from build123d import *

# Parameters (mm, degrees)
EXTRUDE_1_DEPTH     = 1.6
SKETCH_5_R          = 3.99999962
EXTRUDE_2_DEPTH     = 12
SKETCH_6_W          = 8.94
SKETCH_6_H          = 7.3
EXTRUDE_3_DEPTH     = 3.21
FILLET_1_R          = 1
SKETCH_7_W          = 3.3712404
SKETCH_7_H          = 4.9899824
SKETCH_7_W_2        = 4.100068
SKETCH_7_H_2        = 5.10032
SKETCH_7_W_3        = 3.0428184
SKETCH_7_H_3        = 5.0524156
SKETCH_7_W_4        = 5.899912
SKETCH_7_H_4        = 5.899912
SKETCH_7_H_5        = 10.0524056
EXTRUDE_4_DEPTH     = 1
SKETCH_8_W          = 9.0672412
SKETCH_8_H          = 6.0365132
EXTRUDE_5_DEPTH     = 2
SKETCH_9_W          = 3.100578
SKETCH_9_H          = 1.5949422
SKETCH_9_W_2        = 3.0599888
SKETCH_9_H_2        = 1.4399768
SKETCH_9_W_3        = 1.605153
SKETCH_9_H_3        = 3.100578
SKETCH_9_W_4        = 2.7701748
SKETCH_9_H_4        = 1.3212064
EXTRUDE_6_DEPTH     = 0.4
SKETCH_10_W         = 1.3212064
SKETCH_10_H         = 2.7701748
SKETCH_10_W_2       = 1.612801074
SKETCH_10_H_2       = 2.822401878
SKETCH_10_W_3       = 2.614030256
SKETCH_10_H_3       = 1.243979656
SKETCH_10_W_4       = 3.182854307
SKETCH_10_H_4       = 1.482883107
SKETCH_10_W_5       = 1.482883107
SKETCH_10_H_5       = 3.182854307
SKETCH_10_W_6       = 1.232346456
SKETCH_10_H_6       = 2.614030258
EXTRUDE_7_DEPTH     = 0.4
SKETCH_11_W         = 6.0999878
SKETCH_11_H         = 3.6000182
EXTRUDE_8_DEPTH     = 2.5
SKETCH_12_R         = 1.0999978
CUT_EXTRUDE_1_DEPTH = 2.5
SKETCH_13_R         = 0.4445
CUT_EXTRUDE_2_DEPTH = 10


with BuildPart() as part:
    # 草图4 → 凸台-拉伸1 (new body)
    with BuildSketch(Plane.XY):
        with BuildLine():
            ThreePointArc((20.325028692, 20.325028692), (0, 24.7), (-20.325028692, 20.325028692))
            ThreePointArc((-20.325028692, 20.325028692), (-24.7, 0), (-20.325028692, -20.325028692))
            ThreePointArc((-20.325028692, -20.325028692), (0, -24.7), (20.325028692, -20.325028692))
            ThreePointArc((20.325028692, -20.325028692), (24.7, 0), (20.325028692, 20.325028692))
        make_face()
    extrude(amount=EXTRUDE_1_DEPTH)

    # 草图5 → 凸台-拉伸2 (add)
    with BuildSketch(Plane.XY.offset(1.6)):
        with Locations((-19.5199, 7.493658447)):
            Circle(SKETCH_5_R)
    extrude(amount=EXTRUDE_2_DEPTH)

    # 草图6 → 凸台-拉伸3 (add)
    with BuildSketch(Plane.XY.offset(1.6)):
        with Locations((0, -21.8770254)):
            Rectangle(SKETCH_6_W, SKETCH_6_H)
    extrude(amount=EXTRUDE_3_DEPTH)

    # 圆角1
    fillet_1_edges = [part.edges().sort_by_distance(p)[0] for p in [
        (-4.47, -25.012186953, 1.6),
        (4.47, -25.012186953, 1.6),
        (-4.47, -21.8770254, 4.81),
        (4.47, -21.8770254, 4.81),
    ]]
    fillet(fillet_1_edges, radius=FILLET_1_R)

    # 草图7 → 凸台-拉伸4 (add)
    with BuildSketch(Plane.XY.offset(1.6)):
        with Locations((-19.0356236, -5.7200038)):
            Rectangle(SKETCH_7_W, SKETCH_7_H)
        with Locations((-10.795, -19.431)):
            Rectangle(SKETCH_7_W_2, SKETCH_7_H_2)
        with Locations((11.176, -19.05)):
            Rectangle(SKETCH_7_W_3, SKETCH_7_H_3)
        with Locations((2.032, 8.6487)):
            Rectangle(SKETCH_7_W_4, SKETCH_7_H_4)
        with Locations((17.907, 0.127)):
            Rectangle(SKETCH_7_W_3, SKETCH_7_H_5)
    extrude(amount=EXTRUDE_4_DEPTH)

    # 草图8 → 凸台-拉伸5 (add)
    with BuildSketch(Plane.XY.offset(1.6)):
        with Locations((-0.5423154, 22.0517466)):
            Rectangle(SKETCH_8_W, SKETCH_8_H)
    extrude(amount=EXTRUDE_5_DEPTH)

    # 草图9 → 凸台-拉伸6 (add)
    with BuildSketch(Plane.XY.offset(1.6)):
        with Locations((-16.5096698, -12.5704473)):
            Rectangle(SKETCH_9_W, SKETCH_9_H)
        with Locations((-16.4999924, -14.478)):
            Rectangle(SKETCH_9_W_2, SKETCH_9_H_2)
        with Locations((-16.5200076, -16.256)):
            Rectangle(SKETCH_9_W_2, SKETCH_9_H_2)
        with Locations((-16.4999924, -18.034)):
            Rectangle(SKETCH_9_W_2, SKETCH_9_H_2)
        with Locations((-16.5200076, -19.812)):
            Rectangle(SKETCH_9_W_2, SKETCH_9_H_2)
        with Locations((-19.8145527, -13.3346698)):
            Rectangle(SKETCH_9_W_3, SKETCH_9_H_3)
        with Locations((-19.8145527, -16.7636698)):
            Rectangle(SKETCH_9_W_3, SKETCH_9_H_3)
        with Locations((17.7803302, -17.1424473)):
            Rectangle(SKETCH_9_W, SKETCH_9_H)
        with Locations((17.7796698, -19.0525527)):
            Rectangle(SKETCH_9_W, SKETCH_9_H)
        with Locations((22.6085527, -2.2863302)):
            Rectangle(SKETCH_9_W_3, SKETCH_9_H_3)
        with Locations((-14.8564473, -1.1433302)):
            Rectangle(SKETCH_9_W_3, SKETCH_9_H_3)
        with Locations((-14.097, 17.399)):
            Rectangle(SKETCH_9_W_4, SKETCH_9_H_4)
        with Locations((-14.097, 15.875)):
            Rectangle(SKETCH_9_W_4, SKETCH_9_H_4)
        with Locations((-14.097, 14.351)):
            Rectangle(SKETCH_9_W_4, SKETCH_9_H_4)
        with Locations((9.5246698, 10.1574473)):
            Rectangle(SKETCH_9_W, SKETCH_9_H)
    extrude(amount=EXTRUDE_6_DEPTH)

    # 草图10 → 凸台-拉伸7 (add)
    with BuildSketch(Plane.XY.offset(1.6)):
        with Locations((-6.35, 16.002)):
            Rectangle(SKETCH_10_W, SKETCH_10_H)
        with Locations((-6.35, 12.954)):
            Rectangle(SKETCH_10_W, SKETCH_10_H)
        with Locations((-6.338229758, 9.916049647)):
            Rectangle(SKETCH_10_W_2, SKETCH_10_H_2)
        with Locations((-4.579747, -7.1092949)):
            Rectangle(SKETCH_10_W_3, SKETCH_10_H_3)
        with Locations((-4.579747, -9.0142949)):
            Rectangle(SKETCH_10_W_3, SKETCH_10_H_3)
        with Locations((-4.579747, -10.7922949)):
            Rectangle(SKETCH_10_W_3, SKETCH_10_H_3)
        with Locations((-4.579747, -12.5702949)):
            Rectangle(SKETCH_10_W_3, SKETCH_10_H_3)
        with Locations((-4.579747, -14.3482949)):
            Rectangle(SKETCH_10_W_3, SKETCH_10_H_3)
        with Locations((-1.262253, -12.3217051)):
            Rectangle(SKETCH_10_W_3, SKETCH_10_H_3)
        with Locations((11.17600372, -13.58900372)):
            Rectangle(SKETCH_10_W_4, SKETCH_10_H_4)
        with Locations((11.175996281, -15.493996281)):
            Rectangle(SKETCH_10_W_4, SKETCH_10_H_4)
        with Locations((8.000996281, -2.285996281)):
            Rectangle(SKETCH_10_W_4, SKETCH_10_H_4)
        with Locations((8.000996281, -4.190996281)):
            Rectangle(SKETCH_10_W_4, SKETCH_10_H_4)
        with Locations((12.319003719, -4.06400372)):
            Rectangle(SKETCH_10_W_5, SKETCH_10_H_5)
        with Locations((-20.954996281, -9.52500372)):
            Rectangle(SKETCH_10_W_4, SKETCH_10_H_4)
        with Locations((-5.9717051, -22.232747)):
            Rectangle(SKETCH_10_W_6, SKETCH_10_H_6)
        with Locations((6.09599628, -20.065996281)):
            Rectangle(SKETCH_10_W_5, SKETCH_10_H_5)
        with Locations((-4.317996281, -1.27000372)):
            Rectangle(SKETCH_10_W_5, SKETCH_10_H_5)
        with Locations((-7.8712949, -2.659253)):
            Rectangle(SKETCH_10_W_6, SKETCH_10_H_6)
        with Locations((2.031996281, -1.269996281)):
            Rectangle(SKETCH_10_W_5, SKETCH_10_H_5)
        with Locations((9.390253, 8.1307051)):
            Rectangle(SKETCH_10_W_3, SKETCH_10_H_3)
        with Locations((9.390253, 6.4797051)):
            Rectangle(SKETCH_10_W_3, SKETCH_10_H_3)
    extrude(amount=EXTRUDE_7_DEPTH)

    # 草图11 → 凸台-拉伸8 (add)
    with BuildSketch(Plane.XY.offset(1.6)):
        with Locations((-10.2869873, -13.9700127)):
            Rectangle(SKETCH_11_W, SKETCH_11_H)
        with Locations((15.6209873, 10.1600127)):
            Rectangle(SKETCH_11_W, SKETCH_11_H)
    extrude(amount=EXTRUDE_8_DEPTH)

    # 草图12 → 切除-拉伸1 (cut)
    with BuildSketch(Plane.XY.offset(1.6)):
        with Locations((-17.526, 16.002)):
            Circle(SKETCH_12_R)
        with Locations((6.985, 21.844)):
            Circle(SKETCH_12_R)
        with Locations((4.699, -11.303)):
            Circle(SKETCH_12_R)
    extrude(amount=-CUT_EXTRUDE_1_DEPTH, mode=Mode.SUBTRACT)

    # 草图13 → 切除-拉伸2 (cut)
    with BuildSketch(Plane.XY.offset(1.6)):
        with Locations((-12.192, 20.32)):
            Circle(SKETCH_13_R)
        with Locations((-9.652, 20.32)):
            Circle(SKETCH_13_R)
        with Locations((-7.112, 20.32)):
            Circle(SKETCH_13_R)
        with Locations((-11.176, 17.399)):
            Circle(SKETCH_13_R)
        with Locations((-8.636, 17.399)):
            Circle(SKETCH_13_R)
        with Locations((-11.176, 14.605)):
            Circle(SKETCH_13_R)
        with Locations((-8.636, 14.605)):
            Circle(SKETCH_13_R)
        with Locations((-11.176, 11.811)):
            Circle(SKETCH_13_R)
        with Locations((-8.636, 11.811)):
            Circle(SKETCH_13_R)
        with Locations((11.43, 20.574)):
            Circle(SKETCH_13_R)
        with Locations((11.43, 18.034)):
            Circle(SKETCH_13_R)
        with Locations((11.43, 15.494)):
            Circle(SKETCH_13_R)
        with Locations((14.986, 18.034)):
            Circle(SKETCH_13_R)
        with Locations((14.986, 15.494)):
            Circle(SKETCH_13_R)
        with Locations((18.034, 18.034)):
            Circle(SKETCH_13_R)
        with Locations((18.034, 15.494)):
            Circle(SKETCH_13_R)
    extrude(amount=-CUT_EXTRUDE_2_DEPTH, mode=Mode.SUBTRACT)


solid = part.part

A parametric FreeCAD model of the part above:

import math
import FreeCAD as App
import Part
import Sketcher

V = App.Vector
Q = App.Units.Quantity


def edges_at(feature, points):
    """Names of the edges that pass closest to the given points."""
    edges = feature.Shape.Edges
    near = lambda p: min(range(len(edges)), key=lambda i: edges[i].distToShape(Part.Vertex(*p))[0])
    return sorted({f"Edge{near(p) + 1}" for p in points})


def add_polygon(sketch, points):
    """Adds a closed chain of lines whose ends are joined by coincident constraints."""
    first, n = sketch.GeometryCount, len(points)
    for a, b in zip(points, points[1:] + points[:1]):
        sketch.addGeometry(Part.LineSegment(App.Vector(*a, 0), App.Vector(*b, 0)), False)
    for i in range(n):
        sketch.addConstraint(Sketcher.Constraint("Coincident", first + i, 2, first + (i + 1) % n, 1))

doc = App.newDocument("Part")
body = doc.addObject("PartDesign::Body", "Body")

sketch1 = body.newObject("Sketcher::SketchObject", "Sketch")
sketch1.AttachmentSupport = (doc.getObject("XY_Plane"), [""])
sketch1.MapMode = "FlatFace"
sketch1.addGeometry(Part.ArcOfCircle(Part.Circle(V(0, -24.7, 0), V(0, 0, 1), 49.4), math.radians(65.704811), math.radians(114.295189)), False)
sketch1.addGeometry(Part.ArcOfCircle(Part.Circle(V(24.7, 0, 0), V(0, 0, 1), 49.4), math.radians(155.704811), math.radians(204.295189)), False)
sketch1.addGeometry(Part.ArcOfCircle(Part.Circle(V(0, 24.7, 0), V(0, 0, 1), 49.4), math.radians(-114.295189), math.radians(-65.704811)), False)
sketch1.addGeometry(Part.ArcOfCircle(Part.Circle(V(-24.7, 0, 0), V(0, 0, 1), 49.4), math.radians(-24.295189), math.radians(24.295189)), False)
sketch1.addConstraint(Sketcher.Constraint("Coincident", 0, 2, 1, 1))
sketch1.addConstraint(Sketcher.Constraint("Coincident", 1, 2, 2, 1))
sketch1.addConstraint(Sketcher.Constraint("Coincident", 2, 2, 3, 1))
sketch1.addConstraint(Sketcher.Constraint("Coincident", 3, 2, 0, 1))
sketch1.addConstraint(Sketcher.Constraint("Equal", 0, 1))
sketch1.addConstraint(Sketcher.Constraint("Equal", 1, 2))
sketch1.addConstraint(Sketcher.Constraint("Equal", 2, 3))
sketch1.addConstraint(Sketcher.Constraint("Symmetric", 0, 3, 2, 3, -1, 1))
sketch1.addConstraint(Sketcher.Constraint("Symmetric", 1, 3, 3, 3, -1, 1))
sketch1.addConstraint(Sketcher.Constraint("Symmetric", 1, 2, 2, 2, -2))
sketch1.addConstraint(Sketcher.Constraint("Radius", 0, Q("49.4 mm")))
sketch1.addConstraint(Sketcher.Constraint("DistanceY", 0, 3, -1, 1, Q("24.7 mm")))
sketch1.addConstraint(Sketcher.Constraint("DistanceX", -1, 1, 1, 3, Q("24.7 mm")))
pad1 = body.newObject("PartDesign::Pad", "Pad")
pad1.Profile = sketch1
pad1.Length = 1.6

sketch2 = body.newObject("Sketcher::SketchObject", "Sketch001")
sketch2.AttachmentSupport = (doc.getObject("XY_Plane"), [""])
sketch2.MapMode = "FlatFace"
sketch2.AttachmentOffset = App.Placement(V(0, 0, 1.6), App.Rotation())
sketch2.addGeometry(Part.Circle(V(-19.5199, 7.493658, 0), V(0, 0, 1), 4), False)
sketch2.addConstraint(Sketcher.Constraint("Diameter", 0, Q("7.999999 mm")))
sketch2.addConstraint(Sketcher.Constraint("DistanceX", 0, 3, -1, 1, Q("19.5199 mm")))
sketch2.addConstraint(Sketcher.Constraint("DistanceY", -1, 1, 0, 3, Q("7.493658 mm")))
pad2 = body.newObject("PartDesign::Pad", "Pad001")
pad2.Profile = sketch2
pad2.Length = 12

sketch3 = body.newObject("Sketcher::SketchObject", "Sketch002")
sketch3.AttachmentSupport = (doc.getObject("XY_Plane"), [""])
sketch3.MapMode = "FlatFace"
sketch3.AttachmentOffset = App.Placement(V(0, 0, 1.6), App.Rotation())
add_polygon(sketch3, [(-4.47, -18.227025), (-4.47, -25.527025), (4.47, -25.527025), (4.47, -18.227025)])
sketch3.addConstraint(Sketcher.Constraint("Vertical", 0))
sketch3.addConstraint(Sketcher.Constraint("Horizontal", 1))
sketch3.addConstraint(Sketcher.Constraint("Vertical", 2))
sketch3.addConstraint(Sketcher.Constraint("Horizontal", 3))
sketch3.addConstraint(Sketcher.Constraint("DistanceY", 0, 2, 0, 1, Q("7.3 mm")))
sketch3.addConstraint(Sketcher.Constraint("DistanceX", 1, 1, 1, 2, Q("8.94 mm")))
sketch3.addConstraint(Sketcher.Constraint("DistanceX", 0, 2, -1, 1, Q("4.47 mm")))
sketch3.addConstraint(Sketcher.Constraint("DistanceY", 0, 2, -1, 1, Q("25.527025 mm")))
pad3 = body.newObject("PartDesign::Pad", "Pad002")
pad3.Profile = sketch3
pad3.Length = 3.21
doc.recompute()

fillet = body.newObject("PartDesign::Fillet", "Fillet")
fillet.Base = (pad3, edges_at(pad3, [
    (-4.47, -25.012, 1.6),
    (4.47, -25.012, 1.6),
    (-4.47, -21.877, 4.81),
    (4.47, -21.877, 4.81),
]))
fillet.Radius = 1

sketch4 = body.newObject("Sketcher::SketchObject", "Sketch003")
sketch4.AttachmentSupport = (doc.getObject("XY_Plane"), [""])
sketch4.MapMode = "FlatFace"
sketch4.AttachmentOffset = App.Placement(V(0, 0, 1.6), App.Rotation())
add_polygon(sketch4, [(-20.721244, -3.225013), (-20.721244, -8.214995), (-17.350003, -8.214995), (-17.350003, -3.225013)])
add_polygon(sketch4, [(-12.845034, -16.88084), (-12.845034, -21.98116), (-8.744966, -21.98116), (-8.744966, -16.88084)])
add_polygon(sketch4, [(9.654591, -16.523792), (9.654591, -21.576208), (12.697409, -21.576208), (12.697409, -16.523792)])
add_polygon(sketch4, [(-0.917956, 11.598656), (-0.917956, 5.698744), (4.981956, 5.698744), (4.981956, 11.598656)])
add_polygon(sketch4, [(16.385591, 5.153203), (16.385591, -4.899203), (19.428409, -4.899203), (19.428409, 5.153203)])
sketch4.addConstraint(Sketcher.Constraint("Vertical", 0))
sketch4.addConstraint(Sketcher.Constraint("Horizontal", 1))
sketch4.addConstraint(Sketcher.Constraint("Vertical", 2))
sketch4.addConstraint(Sketcher.Constraint("Horizontal", 3))
sketch4.addConstraint(Sketcher.Constraint("Vertical", 4))
sketch4.addConstraint(Sketcher.Constraint("Horizontal", 5))
sketch4.addConstraint(Sketcher.Constraint("Vertical", 6))
sketch4.addConstraint(Sketcher.Constraint("Horizontal", 7))
sketch4.addConstraint(Sketcher.Constraint("Vertical", 8))
sketch4.addConstraint(Sketcher.Constraint("Horizontal", 9))
sketch4.addConstraint(Sketcher.Constraint("Vertical", 10))
sketch4.addConstraint(Sketcher.Constraint("Horizontal", 11))
sketch4.addConstraint(Sketcher.Constraint("Vertical", 12))
sketch4.addConstraint(Sketcher.Constraint("Horizontal", 13))
sketch4.addConstraint(Sketcher.Constraint("Vertical", 14))
sketch4.addConstraint(Sketcher.Constraint("Horizontal", 15))
sketch4.addConstraint(Sketcher.Constraint("Vertical", 16))
sketch4.addConstraint(Sketcher.Constraint("Horizontal", 17))
sketch4.addConstraint(Sketcher.Constraint("Vertical", 18))
sketch4.addConstraint(Sketcher.Constraint("Horizontal", 19))
sketch4.addConstraint(Sketcher.Constraint("Equal", 11, 17))
sketch4.addConstraint(Sketcher.Constraint("Equal", 15, 12))
sketch4.addConstraint(Sketcher.Constraint("DistanceX", 11, 2, 16, 2, Q("6.731 mm")))
sketch4.addConstraint(Sketcher.Constraint("DistanceX", 1, 1, 1, 2, Q("3.37124 mm")))
sketch4.addConstraint(Sketcher.Constraint("DistanceX", 5, 1, 5, 2, Q("4.100068 mm")))
sketch4.addConstraint(Sketcher.Constraint("DistanceX", 9, 1, 9, 2, Q("3.042818 mm")))
sketch4.addConstraint(Sketcher.Constraint("DistanceY", 4, 2, 4, 1, Q("5.10032 mm")))
sketch4.addConstraint(Sketcher.Constraint("DistanceX", 13, 1, 13, 2, Q("5.899912 mm")))
sketch4.addConstraint(Sketcher.Constraint("DistanceY", 0, 2, 0, 1, Q("4.989982 mm")))
sketch4.addConstraint(Sketcher.Constraint("DistanceY", 8, 2, 8, 1, Q("5.052416 mm")))
sketch4.addConstraint(Sketcher.Constraint("DistanceY", 16, 2, 16, 1, Q("10.052406 mm")))
sketch4.addConstraint(Sketcher.Constraint("DistanceY", 4, 2, -1, 1, Q("21.98116 mm")))
sketch4.addConstraint(Sketcher.Constraint("DistanceX", -1, 1, 8, 2, Q("9.654591 mm")))
sketch4.addConstraint(Sketcher.Constraint("DistanceX", 1, 2, 4, 2, Q("4.504969 mm")))
sketch4.addConstraint(Sketcher.Constraint("DistanceY", 1, 2, 12, 2, Q("13.913739 mm")))
sketch4.addConstraint(Sketcher.Constraint("DistanceX", 6, 2, 12, 2, Q("7.82701 mm")))
sketch4.addConstraint(Sketcher.Constraint("DistanceY", 11, 2, 14, 2, Q("28.122448 mm")))
sketch4.addConstraint(Sketcher.Constraint("DistanceY", 10, 2, 16, 2, Q("11.624589 mm")))
sketch4.addConstraint(Sketcher.Constraint("DistanceX", 0, 2, -1, 1, Q("20.721244 mm")))
sketch4.addConstraint(Sketcher.Constraint("DistanceY", 0, 2, -1, 1, Q("8.214995 mm")))
pad4 = body.newObject("PartDesign::Pad", "Pad003")
pad4.Profile = sketch4
pad4.Length = 1

sketch5 = body.newObject("Sketcher::SketchObject", "Sketch004")
sketch5.AttachmentSupport = (doc.getObject("XY_Plane"), [""])
sketch5.MapMode = "FlatFace"
sketch5.AttachmentOffset = App.Placement(V(0, 0, 1.6), App.Rotation())
add_polygon(sketch5, [(-5.075936, 25.070003), (-5.075936, 19.03349), (3.991305, 19.03349), (3.991305, 25.070003)])
sketch5.addConstraint(Sketcher.Constraint("Vertical", 0))
sketch5.addConstraint(Sketcher.Constraint("Horizontal", 1))
sketch5.addConstraint(Sketcher.Constraint("Vertical", 2))
sketch5.addConstraint(Sketcher.Constraint("Horizontal", 3))
sketch5.addConstraint(Sketcher.Constraint("DistanceX", 1, 1, 1, 2, Q("9.067241 mm")))
sketch5.addConstraint(Sketcher.Constraint("DistanceY", 0, 2, 0, 1, Q("6.036513 mm")))
sketch5.addConstraint(Sketcher.Constraint("DistanceY", -1, 1, 0, 2, Q("19.03349 mm")))
sketch5.addConstraint(Sketcher.Constraint("DistanceX", 0, 2, -1, 1, Q("5.075936 mm")))
pad5 = body.newObject("PartDesign::Pad", "Pad004")
pad5.Profile = sketch5
pad5.Length = 2

sketch6 = body.newObject("Sketcher::SketchObject", "Sketch005")
sketch6.AttachmentSupport = (doc.getObject("XY_Plane"), [""])
sketch6.MapMode = "FlatFace"
sketch6.AttachmentOffset = App.Placement(V(0, 0, 1.6), App.Rotation())
add_polygon(sketch6, [(-18.059959, -11.772976), (-18.059959, -13.367918), (-14.959381, -13.367918), (-14.959381, -11.772976)])
add_polygon(sketch6, [(-18.029987, -13.758012), (-18.029987, -15.197988), (-14.969998, -15.197988), (-14.969998, -13.758012)])
add_polygon(sketch6, [(-18.050002, -15.536012), (-18.050002, -16.975988), (-14.990013, -16.975988), (-14.990013, -15.536012)])
add_polygon(sketch6, [(-18.029987, -17.314012), (-18.029987, -18.753988), (-14.969998, -18.753988), (-14.969998, -17.314012)])
add_polygon(sketch6, [(-18.050002, -19.092012), (-18.050002, -20.531988), (-14.990013, -20.531988), (-14.990013, -19.092012)])
add_polygon(sketch6, [(-20.617129, -11.784381), (-20.617129, -14.884959), (-19.011976, -14.884959), (-19.011976, -11.784381)])
add_polygon(sketch6, [(-20.617129, -15.213381), (-20.617129, -18.313959), (-19.011976, -18.313959), (-19.011976, -15.213381)])
add_polygon(sketch6, [(16.230041, -16.344976), (16.230041, -17.939918), (19.330619, -17.939918), (19.330619, -16.344976)])
add_polygon(sketch6, [(16.229381, -18.255082), (16.229381, -19.850024), (19.329959, -19.850024), (19.329959, -18.255082)])
add_polygon(sketch6, [(21.805976, -0.736041), (21.805976, -3.836619), (23.411129, -3.836619), (23.411129, -0.736041)])
add_polygon(sketch6, [(-15.659024, 0.406959), (-15.659024, -2.693619), (-14.053871, -2.693619), (-14.053871, 0.406959)])
add_polygon(sketch6, [(-15.482087, 18.059603), (-15.482087, 16.738397), (-12.711913, 16.738397), (-12.711913, 18.059603)])
add_polygon(sketch6, [(-15.482087, 16.535603), (-15.482087, 15.214397), (-12.711913, 15.214397), (-12.711913, 16.535603)])
add_polygon(sketch6, [(-15.482087, 15.011603), (-15.482087, 13.690397), (-12.711913, 13.690397), (-12.711913, 15.011603)])
add_polygon(sketch6, [(7.974381, 10.954918), (7.974381, 9.359976), (11.074959, 9.359976), (11.074959, 10.954918)])
sketch6.addConstraint(Sketcher.Constraint("Vertical", 0))
sketch6.addConstraint(Sketcher.Constraint("Horizontal", 1))
sketch6.addConstraint(Sketcher.Constraint("Vertical", 2))
sketch6.addConstraint(Sketcher.Constraint("Horizontal", 3))
sketch6.addConstraint(Sketcher.Constraint("Vertical", 4))
sketch6.addConstraint(Sketcher.Constraint("Horizontal", 5))
sketch6.addConstraint(Sketcher.Constraint("Vertical", 6))
sketch6.addConstraint(Sketcher.Constraint("Horizontal", 7))
sketch6.addConstraint(Sketcher.Constraint("Vertical", 8))
sketch6.addConstraint(Sketcher.Constraint("Horizontal", 9))
sketch6.addConstraint(Sketcher.Constraint("Vertical", 10))
sketch6.addConstraint(Sketcher.Constraint("Horizontal", 11))
sketch6.addConstraint(Sketcher.Constraint("Vertical", 12))
sketch6.addConstraint(Sketcher.Constraint("Horizontal", 13))
sketch6.addConstraint(Sketcher.Constraint("Vertical", 14))
sketch6.addConstraint(Sketcher.Constraint("Horizontal", 15))
sketch6.addConstraint(Sketcher.Constraint("Vertical", 16))
sketch6.addConstraint(Sketcher.Constraint("Horizontal", 17))
sketch6.addConstraint(Sketcher.Constraint("Vertical", 18))
sketch6.addConstraint(Sketcher.Constraint("Horizontal", 19))
sketch6.addConstraint(Sketcher.Constraint("Vertical", 20))
sketch6.addConstraint(Sketcher.Constraint("Horizontal", 21))
sketch6.addConstraint(Sketcher.Constraint("Vertical", 22))
sketch6.addConstraint(Sketcher.Constraint("Horizontal", 23))
sketch6.addConstraint(Sketcher.Constraint("Vertical", 24))
sketch6.addConstraint(Sketcher.Constraint("Horizontal", 25))
sketch6.addConstraint(Sketcher.Constraint("Vertical", 26))
sketch6.addConstraint(Sketcher.Constraint("Horizontal", 27))
sketch6.addConstraint(Sketcher.Constraint("Vertical", 28))
sketch6.addConstraint(Sketcher.Constraint("Horizontal", 29))
sketch6.addConstraint(Sketcher.Constraint("Vertical", 30))
sketch6.addConstraint(Sketcher.Constraint("Horizontal", 31))
sketch6.addConstraint(Sketcher.Constraint("Vertical", 32))
sketch6.addConstraint(Sketcher.Constraint("Horizontal", 33))
sketch6.addConstraint(Sketcher.Constraint("Vertical", 34))
sketch6.addConstraint(Sketcher.Constraint("Horizontal", 35))
sketch6.addConstraint(Sketcher.Constraint("Vertical", 36))
sketch6.addConstraint(Sketcher.Constraint("Horizontal", 37))
sketch6.addConstraint(Sketcher.Constraint("Vertical", 38))
sketch6.addConstraint(Sketcher.Constraint("Horizontal", 39))
sketch6.addConstraint(Sketcher.Constraint("Vertical", 40))
sketch6.addConstraint(Sketcher.Constraint("Horizontal", 41))
sketch6.addConstraint(Sketcher.Constraint("Vertical", 42))
sketch6.addConstraint(Sketcher.Constraint("Horizontal", 43))
sketch6.addConstraint(Sketcher.Constraint("Vertical", 44))
sketch6.addConstraint(Sketcher.Constraint("Horizontal", 45))
sketch6.addConstraint(Sketcher.Constraint("Vertical", 46))
sketch6.addConstraint(Sketcher.Constraint("Horizontal", 47))
sketch6.addConstraint(Sketcher.Constraint("Vertical", 48))
sketch6.addConstraint(Sketcher.Constraint("Horizontal", 49))
sketch6.addConstraint(Sketcher.Constraint("Vertical", 50))
sketch6.addConstraint(Sketcher.Constraint("Horizontal", 51))
sketch6.addConstraint(Sketcher.Constraint("Vertical", 52))
sketch6.addConstraint(Sketcher.Constraint("Horizontal", 53))
sketch6.addConstraint(Sketcher.Constraint("Vertical", 54))
sketch6.addConstraint(Sketcher.Constraint("Horizontal", 55))
sketch6.addConstraint(Sketcher.Constraint("Vertical", 56))
sketch6.addConstraint(Sketcher.Constraint("Horizontal", 57))
sketch6.addConstraint(Sketcher.Constraint("Vertical", 58))
sketch6.addConstraint(Sketcher.Constraint("Horizontal", 59))
sketch6.addConstraint(Sketcher.Constraint("Vertical", 7, 2, 12, 2))
sketch6.addConstraint(Sketcher.Constraint("Vertical", 6, 2, 13, 2))
sketch6.addConstraint(Sketcher.Constraint("Vertical", 11, 2, 16, 2))
sketch6.addConstraint(Sketcher.Constraint("Vertical", 10, 2, 17, 2))
sketch6.addConstraint(Sketcher.Constraint("Vertical", 23, 2, 24, 2))
sketch6.addConstraint(Sketcher.Constraint("Vertical", 22, 2, 25, 2))
sketch6.addConstraint(Sketcher.Constraint("Vertical", 47, 2, 48, 2))
sketch6.addConstraint(Sketcher.Constraint("Vertical", 46, 2, 49, 2))
sketch6.addConstraint(Sketcher.Constraint("Vertical", 51, 2, 52, 2))
sketch6.addConstraint(Sketcher.Constraint("Vertical", 50, 2, 53, 2))
sketch6.addConstraint(Sketcher.Constraint("Equal", 7, 9))
sketch6.addConstraint(Sketcher.Constraint("Equal", 3, 29))
sketch6.addConstraint(Sketcher.Constraint("Equal", 31, 33))
sketch6.addConstraint(Sketcher.Constraint("Equal", 27, 37))
sketch6.addConstraint(Sketcher.Constraint("Equal", 39, 41))
sketch6.addConstraint(Sketcher.Constraint("Equal", 35, 57))
sketch6.addConstraint(Sketcher.Constraint("Equal", 6, 8))
sketch6.addConstraint(Sketcher.Constraint("Equal", 10, 12))
sketch6.addConstraint(Sketcher.Constraint("Equal", 14, 16))
sketch6.addConstraint(Sketcher.Constraint("Equal", 59, 20))
sketch6.addConstraint(Sketcher.Constraint("Equal", 22, 24))
sketch6.addConstraint(Sketcher.Constraint("Equal", 2, 28))
sketch6.addConstraint(Sketcher.Constraint("Equal", 30, 32))
sketch6.addConstraint(Sketcher.Constraint("Equal", 26, 36))
sketch6.addConstraint(Sketcher.Constraint("Equal", 38, 40))
sketch6.addConstraint(Sketcher.Constraint("Equal", 46, 48))
sketch6.addConstraint(Sketcher.Constraint("Equal", 50, 52))
sketch6.addConstraint(Sketcher.Constraint("Equal", 34, 56))
sketch6.addConstraint(Sketcher.Constraint("DistanceX", 8, 2, -1, 1, Q("18.050002 mm")))
sketch6.addConstraint(Sketcher.Constraint("DistanceY", 8, 2, 4, 2, Q("1.778 mm")))
sketch6.addConstraint(Sketcher.Constraint("DistanceY", 12, 2, 8, 2, Q("1.778 mm")))
sketch6.addConstraint(Sketcher.Constraint("DistanceY", 16, 2, 12, 2, Q("1.778 mm")))
sketch6.addConstraint(Sketcher.Constraint("DistanceY", 48, 2, 44, 2, Q("1.524 mm")))
sketch6.addConstraint(Sketcher.Constraint("DistanceY", 52, 2, 48, 2, Q("1.524 mm")))
sketch6.addConstraint(Sketcher.Constraint("DistanceX", 1, 1, 1, 2, Q("3.100578 mm")))
sketch6.addConstraint(Sketcher.Constraint("DistanceX", 5, 1, 5, 2, Q("3.059989 mm")))
sketch6.addConstraint(Sketcher.Constraint("DistanceY", 29, 2, 36, 2, Q("14.103299 mm")))
sketch6.addConstraint(Sketcher.Constraint("DistanceY", 1, 2, 40, 2, Q("10.674299 mm")))
sketch6.addConstraint(Sketcher.Constraint("DistanceX", 21, 1, 21, 2, Q("1.605153 mm")))
sketch6.addConstraint(Sketcher.Constraint("DistanceX", 45, 1, 45, 2, Q("2.770175 mm")))
sketch6.addConstraint(Sketcher.Constraint("DistanceY", 0, 2, 0, 1, Q("1.594942 mm")))
sketch6.addConstraint(Sketcher.Constraint("DistanceY", 4, 2, 4, 1, Q("1.439977 mm")))
sketch6.addConstraint(Sketcher.Constraint("DistanceY", 44, 2, 44, 1, Q("1.321206 mm")))
sketch6.addConstraint(Sketcher.Constraint("DistanceX", 0, 2, -1, 1, Q("18.059959 mm")))
sketch6.addConstraint(Sketcher.Constraint("DistanceY", 0, 2, -1, 1, Q("13.367918 mm")))
sketch6.addConstraint(Sketcher.Constraint("DistanceY", 4, 2, -1, 1, Q("15.197988 mm")))
sketch6.addConstraint(Sketcher.Constraint("DistanceX", 20, 2, -1, 1, Q("20.617129 mm")))
sketch6.addConstraint(Sketcher.Constraint("DistanceY", 20, 2, -1, 1, Q("14.884959 mm")))
sketch6.addConstraint(Sketcher.Constraint("DistanceY", 24, 2, -1, 1, Q("18.313959 mm")))
sketch6.addConstraint(Sketcher.Constraint("DistanceX", -1, 1, 28, 2, Q("16.230041 mm")))
sketch6.addConstraint(Sketcher.Constraint("DistanceY", 28, 2, -1, 1, Q("17.939918 mm")))
sketch6.addConstraint(Sketcher.Constraint("DistanceX", -1, 1, 32, 2, Q("16.229381 mm")))
sketch6.addConstraint(Sketcher.Constraint("DistanceY", 34, 2, -1, 1, Q("18.255082 mm")))
sketch6.addConstraint(Sketcher.Constraint("DistanceX", -1, 1, 37, 2, Q("23.411129 mm")))
sketch6.addConstraint(Sketcher.Constraint("DistanceX", 41, 2, -1, 1, Q("14.053871 mm")))
sketch6.addConstraint(Sketcher.Constraint("DistanceX", -1, 1, 56, 2, Q("7.974381 mm")))
sketch6.addConstraint(Sketcher.Constraint("DistanceY", -1, 1, 58, 2, Q("10.954918 mm")))
sketch6.addConstraint(Sketcher.Constraint("DistanceX", 0, 2, 5, 2, Q("3.089961 mm")))
sketch6.addConstraint(Sketcher.Constraint("DistanceX", 42, 2, 45, 2, Q("1.341958 mm")))
sketch6.addConstraint(Sketcher.Constraint("DistanceY", 56, 2, 53, 2, Q("4.330421 mm")))
pad6 = body.newObject("PartDesign::Pad", "Pad005")
pad6.Profile = sketch6
pad6.Length = 0.4

sketch7 = body.newObject("Sketcher::SketchObject", "Sketch006")
sketch7.AttachmentSupport = (doc.getObject("XY_Plane"), [""])
sketch7.MapMode = "FlatFace"
sketch7.AttachmentOffset = App.Placement(V(0, 0, 1.6), App.Rotation())
add_polygon(sketch7, [(-7.010603, 17.387087), (-7.010603, 14.616913), (-5.689397, 14.616913), (-5.689397, 17.387087)])
add_polygon(sketch7, [(-7.010603, 14.339087), (-7.010603, 11.568913), (-5.689397, 11.568913), (-5.689397, 14.339087)])
add_polygon(sketch7, [(-7.14463, 11.327251), (-7.14463, 8.504849), (-5.531829, 8.504849), (-5.531829, 11.327251)])
add_polygon(sketch7, [(-5.886762, -6.487305), (-5.886762, -7.731285), (-3.272732, -7.731285), (-3.272732, -6.487305)])
add_polygon(sketch7, [(-5.886762, -8.392305), (-5.886762, -9.636285), (-3.272732, -9.636285), (-3.272732, -8.392305)])
add_polygon(sketch7, [(-5.886762, -10.170305), (-5.886762, -11.414285), (-3.272732, -11.414285), (-3.272732, -10.170305)])
add_polygon(sketch7, [(-5.886762, -11.948305), (-5.886762, -13.192285), (-3.272732, -13.192285), (-3.272732, -11.948305)])
add_polygon(sketch7, [(-5.886762, -13.726305), (-5.886762, -14.970285), (-3.272732, -14.970285), (-3.272732, -13.726305)])
add_polygon(sketch7, [(-2.569268, -11.699715), (-2.569268, -12.943695), (0.044762, -12.943695), (0.044762, -11.699715)])
add_polygon(sketch7, [(9.584577, -12.847562), (9.584577, -14.330445), (12.767431, -14.330445), (12.767431, -12.847562)])
add_polygon(sketch7, [(9.584569, -14.752555), (9.584569, -16.235438), (12.767423, -16.235438), (12.767423, -14.752555)])
add_polygon(sketch7, [(6.409569, -1.544555), (6.409569, -3.027438), (9.592423, -3.027438), (9.592423, -1.544555)])
add_polygon(sketch7, [(6.409569, -3.449555), (6.409569, -4.932438), (9.592423, -4.932438), (9.592423, -3.449555)])
add_polygon(sketch7, [(11.577562, -2.472577), (11.577562, -5.655431), (13.060445, -5.655431), (13.060445, -2.472577)])
add_polygon(sketch7, [(-22.546423, -8.783562), (-22.546423, -10.266445), (-19.363569, -10.266445), (-19.363569, -8.783562)])
add_polygon(sketch7, [(-6.587878, -20.925732), (-6.587878, -23.539762), (-5.355532, -23.539762), (-5.355532, -20.925732)])
add_polygon(sketch7, [(5.354555, -18.474569), (5.354555, -21.657423), (6.837438, -21.657423), (6.837438, -18.474569)])
add_polygon(sketch7, [(-5.059438, 0.321423), (-5.059438, -2.861431), (-3.576555, -2.861431), (-3.576555, 0.321423)])
add_polygon(sketch7, [(-8.487468, -1.352238), (-8.487468, -3.966268), (-7.255122, -3.966268), (-7.255122, -1.352238)])
add_polygon(sketch7, [(1.290555, 0.321431), (1.290555, -2.861423), (2.773438, -2.861423), (2.773438, 0.321431)])
add_polygon(sketch7, [(8.083238, 8.752695), (8.083238, 7.508715), (10.697268, 7.508715), (10.697268, 8.752695)])
add_polygon(sketch7, [(8.083238, 7.101695), (8.083238, 5.857715), (10.697268, 5.857715), (10.697268, 7.101695)])
sketch7.addConstraint(Sketcher.Constraint("Vertical", 0))
sketch7.addConstraint(Sketcher.Constraint("Horizontal", 1))
sketch7.addConstraint(Sketcher.Constraint("Vertical", 2))
sketch7.addConstraint(Sketcher.Constraint("Horizontal", 3))
sketch7.addConstraint(Sketcher.Constraint("Vertical", 4))
sketch7.addConstraint(Sketcher.Constraint("Horizontal", 5))
sketch7.addConstraint(Sketcher.Constraint("Vertical", 6))
sketch7.addConstraint(Sketcher.Constraint("Horizontal", 7))
sketch7.addConstraint(Sketcher.Constraint("Vertical", 8))
sketch7.addConstraint(Sketcher.Constraint("Horizontal", 9))
sketch7.addConstraint(Sketcher.Constraint("Vertical", 10))
sketch7.addConstraint(Sketcher.Constraint("Horizontal", 11))
sketch7.addConstraint(Sketcher.Constraint("Vertical", 12))
sketch7.addConstraint(Sketcher.Constraint("Horizontal", 13))
sketch7.addConstraint(Sketcher.Constraint("Vertical", 14))
sketch7.addConstraint(Sketcher.Constraint("Horizontal", 15))
sketch7.addConstraint(Sketcher.Constraint("Vertical", 16))
sketch7.addConstraint(Sketcher.Constraint("Horizontal", 17))
sketch7.addConstraint(Sketcher.Constraint("Vertical", 18))
sketch7.addConstraint(Sketcher.Constraint("Horizontal", 19))
sketch7.addConstraint(Sketcher.Constraint("Vertical", 20))
sketch7.addConstraint(Sketcher.Constraint("Horizontal", 21))
sketch7.addConstraint(Sketcher.Constraint("Vertical", 22))
sketch7.addConstraint(Sketcher.Constraint("Horizontal", 23))
sketch7.addConstraint(Sketcher.Constraint("Vertical", 24))
sketch7.addConstraint(Sketcher.Constraint("Horizontal", 25))
sketch7.addConstraint(Sketcher.Constraint("Vertical", 26))
sketch7.addConstraint(Sketcher.Constraint("Horizontal", 27))
sketch7.addConstraint(Sketcher.Constraint("Vertical", 28))
sketch7.addConstraint(Sketcher.Constraint("Horizontal", 29))
sketch7.addConstraint(Sketcher.Constraint("Vertical", 30))
sketch7.addConstraint(Sketcher.Constraint("Horizontal", 31))
sketch7.addConstraint(Sketcher.Constraint("Vertical", 32))
sketch7.addConstraint(Sketcher.Constraint("Horizontal", 33))
sketch7.addConstraint(Sketcher.Constraint("Vertical", 34))
sketch7.addConstraint(Sketcher.Constraint("Horizontal", 35))
sketch7.addConstraint(Sketcher.Constraint("Vertical", 36))
sketch7.addConstraint(Sketcher.Constraint("Horizontal", 37))
sketch7.addConstraint(Sketcher.Constraint("Vertical", 38))
sketch7.addConstraint(Sketcher.Constraint("Horizontal", 39))
sketch7.addConstraint(Sketcher.Constraint("Vertical", 40))
sketch7.addConstraint(Sketcher.Constraint("Horizontal", 41))
sketch7.addConstraint(Sketcher.Constraint("Vertical", 42))
sketch7.addConstraint(Sketcher.Constraint("Horizontal", 43))
sketch7.addConstraint(Sketcher.Constraint("Vertical", 44))
sketch7.addConstraint(Sketcher.Constraint("Horizontal", 45))
sketch7.addConstraint(Sketcher.Constraint("Vertical", 46))
sketch7.addConstraint(Sketcher.Constraint("Horizontal", 47))
sketch7.addConstraint(Sketcher.Constraint("Vertical", 48))
sketch7.addConstraint(Sketcher.Constraint("Horizontal", 49))
sketch7.addConstraint(Sketcher.Constraint("Vertical", 50))
sketch7.addConstraint(Sketcher.Constraint("Horizontal", 51))
sketch7.addConstraint(Sketcher.Constraint("Vertical", 52))
sketch7.addConstraint(Sketcher.Constraint("Horizontal", 53))
sketch7.addConstraint(Sketcher.Constraint("Vertical", 54))
sketch7.addConstraint(Sketcher.Constraint("Horizontal", 55))
sketch7.addConstraint(Sketcher.Constraint("Vertical", 56))
sketch7.addConstraint(Sketcher.Constraint("Horizontal", 57))
sketch7.addConstraint(Sketcher.Constraint("Vertical", 58))
sketch7.addConstraint(Sketcher.Constraint("Horizontal", 59))
sketch7.addConstraint(Sketcher.Constraint("Vertical", 60))
sketch7.addConstraint(Sketcher.Constraint("Horizontal", 61))
sketch7.addConstraint(Sketcher.Constraint("Vertical", 62))
sketch7.addConstraint(Sketcher.Constraint("Horizontal", 63))
sketch7.addConstraint(Sketcher.Constraint("Vertical", 64))
sketch7.addConstraint(Sketcher.Constraint("Horizontal", 65))
sketch7.addConstraint(Sketcher.Constraint("Vertical", 66))
sketch7.addConstraint(Sketcher.Constraint("Horizontal", 67))
sketch7.addConstraint(Sketcher.Constraint("Vertical", 68))
sketch7.addConstraint(Sketcher.Constraint("Horizontal", 69))
sketch7.addConstraint(Sketcher.Constraint("Vertical", 70))
sketch7.addConstraint(Sketcher.Constraint("Horizontal", 71))
sketch7.addConstraint(Sketcher.Constraint("Vertical", 72))
sketch7.addConstraint(Sketcher.Constraint("Horizontal", 73))
sketch7.addConstraint(Sketcher.Constraint("Vertical", 74))
sketch7.addConstraint(Sketcher.Constraint("Horizontal", 75))
sketch7.addConstraint(Sketcher.Constraint("Vertical", 76))
sketch7.addConstraint(Sketcher.Constraint("Horizontal", 77))
sketch7.addConstraint(Sketcher.Constraint("Vertical", 78))
sketch7.addConstraint(Sketcher.Constraint("Horizontal", 79))
sketch7.addConstraint(Sketcher.Constraint("Vertical", 80))
sketch7.addConstraint(Sketcher.Constraint("Horizontal", 81))
sketch7.addConstraint(Sketcher.Constraint("Vertical", 82))
sketch7.addConstraint(Sketcher.Constraint("Horizontal", 83))
sketch7.addConstraint(Sketcher.Constraint("Vertical", 84))
sketch7.addConstraint(Sketcher.Constraint("Horizontal", 85))
sketch7.addConstraint(Sketcher.Constraint("Vertical", 86))
sketch7.addConstraint(Sketcher.Constraint("Horizontal", 87))
sketch7.addConstraint(Sketcher.Constraint("Vertical", 3, 2, 4, 2))
sketch7.addConstraint(Sketcher.Constraint("Vertical", 2, 2, 5, 2))
sketch7.addConstraint(Sketcher.Constraint("Vertical", 15, 2, 16, 2))
sketch7.addConstraint(Sketcher.Constraint("Vertical", 14, 2, 17, 2))
sketch7.addConstraint(Sketcher.Constraint("Vertical", 19, 2, 20, 2))
sketch7.addConstraint(Sketcher.Constraint("Vertical", 18, 2, 21, 2))
sketch7.addConstraint(Sketcher.Constraint("Vertical", 23, 2, 24, 2))
sketch7.addConstraint(Sketcher.Constraint("Vertical", 22, 2, 25, 2))
sketch7.addConstraint(Sketcher.Constraint("Vertical", 27, 2, 28, 2))
sketch7.addConstraint(Sketcher.Constraint("Vertical", 26, 2, 29, 2))
sketch7.addConstraint(Sketcher.Constraint("Vertical", 47, 2, 48, 2))
sketch7.addConstraint(Sketcher.Constraint("Vertical", 46, 2, 49, 2))
sketch7.addConstraint(Sketcher.Constraint("Vertical", 83, 2, 84, 2))
sketch7.addConstraint(Sketcher.Constraint("Vertical", 82, 2, 85, 2))
sketch7.addConstraint(Sketcher.Constraint("Equal", 31, 33))
sketch7.addConstraint(Sketcher.Constraint("Equal", 39, 41))
sketch7.addConstraint(Sketcher.Constraint("Equal", 43, 45))
sketch7.addConstraint(Sketcher.Constraint("Equal", 51, 57))
sketch7.addConstraint(Sketcher.Constraint("Equal", 55, 65))
sketch7.addConstraint(Sketcher.Constraint("Equal", 67, 69))
sketch7.addConstraint(Sketcher.Constraint("Equal", 63, 73))
sketch7.addConstraint(Sketcher.Constraint("Equal", 71, 77))
sketch7.addConstraint(Sketcher.Constraint("Equal", 35, 81))
sketch7.addConstraint(Sketcher.Constraint("Equal", 2, 4))
sketch7.addConstraint(Sketcher.Constraint("Equal", 14, 16))
sketch7.addConstraint(Sketcher.Constraint("Equal", 18, 20))
sketch7.addConstraint(Sketcher.Constraint("Equal", 22, 24))
sketch7.addConstraint(Sketcher.Constraint("Equal", 26, 28))
sketch7.addConstraint(Sketcher.Constraint("Equal", 30, 32))
sketch7.addConstraint(Sketcher.Constraint("Equal", 79, 36))
sketch7.addConstraint(Sketcher.Constraint("Equal", 38, 40))
sketch7.addConstraint(Sketcher.Constraint("Equal", 42, 44))
sketch7.addConstraint(Sketcher.Constraint("Equal", 46, 48))
sketch7.addConstraint(Sketcher.Constraint("Equal", 59, 52))
sketch7.addConstraint(Sketcher.Constraint("Equal", 50, 56))
sketch7.addConstraint(Sketcher.Constraint("Equal", 87, 60))
sketch7.addConstraint(Sketcher.Constraint("Equal", 54, 64))
sketch7.addConstraint(Sketcher.Constraint("Equal", 66, 68))
sketch7.addConstraint(Sketcher.Constraint("Equal", 62, 72))
sketch7.addConstraint(Sketcher.Constraint("Equal", 70, 76))
sketch7.addConstraint(Sketcher.Constraint("Equal", 34, 80))
sketch7.addConstraint(Sketcher.Constraint("Equal", 82, 84))
sketch7.addConstraint(Sketcher.Constraint("DistanceX", 9, 1, 9, 2, Q("1.612801 mm")))
sketch7.addConstraint(Sketcher.Constraint("DistanceY", 8, 2, 8, 1, Q("2.822402 mm")))
sketch7.addConstraint(Sketcher.Constraint("DistanceX", 13, 1, 13, 2, Q("2.61403 mm")))
sketch7.addConstraint(Sketcher.Constraint("DistanceY", 12, 2, 12, 1, Q("1.24398 mm")))
sketch7.addConstraint(Sketcher.Constraint("DistanceX", 1, 1, 1, 2, Q("1.321206 mm")))
sketch7.addConstraint(Sketcher.Constraint("DistanceX", 37, 1, 37, 2, Q("3.182854 mm")))
sketch7.addConstraint(Sketcher.Constraint("DistanceX", 53, 1, 53, 2, Q("1.482883 mm")))
sketch7.addConstraint(Sketcher.Constraint("DistanceX", 61, 1, 61, 2, Q("1.232346 mm")))
sketch7.addConstraint(Sketcher.Constraint("DistanceY", 0, 2, 0, 1, Q("2.770175 mm")))
sketch7.addConstraint(Sketcher.Constraint("DistanceX", 8, 2, -1, 1, Q("7.14463 mm")))
sketch7.addConstraint(Sketcher.Constraint("DistanceY", -1, 1, 8, 2, Q("8.504849 mm")))
sketch7.addConstraint(Sketcher.Constraint("DistanceX", 13, 2, -1, 1, Q("3.272732 mm")))
sketch7.addConstraint(Sketcher.Constraint("DistanceX", 32, 2, -1, 1, Q("2.569268 mm")))
sketch7.addConstraint(Sketcher.Constraint("DistanceX", -1, 1, 37, 2, Q("12.767431 mm")))
sketch7.addConstraint(Sketcher.Constraint("DistanceX", -1, 1, 40, 2, Q("9.584569 mm")))
sketch7.addConstraint(Sketcher.Constraint("DistanceX", -1, 1, 44, 2, Q("6.409569 mm")))
sketch7.addConstraint(Sketcher.Constraint("DistanceY", 52, 2, -1, 1, Q("5.655431 mm")))
sketch7.addConstraint(Sketcher.Constraint("DistanceX", 57, 2, -1, 1, Q("19.363569 mm")))
sketch7.addConstraint(Sketcher.Constraint("DistanceX", 60, 2, -1, 1, Q("6.587878 mm")))
sketch7.addConstraint(Sketcher.Constraint("DistanceY", 62, 2, -1, 1, Q("20.925732 mm")))
sketch7.addConstraint(Sketcher.Constraint("DistanceY", 66, 2, -1, 1, Q("18.474569 mm")))
sketch7.addConstraint(Sketcher.Constraint("DistanceY", 68, 2, -1, 1, Q("2.861431 mm")))
sketch7.addConstraint(Sketcher.Constraint("DistanceX", 72, 2, -1, 1, Q("8.487468 mm")))
sketch7.addConstraint(Sketcher.Constraint("DistanceY", 72, 2, -1, 1, Q("3.966268 mm")))
sketch7.addConstraint(Sketcher.Constraint("DistanceY", -1, 1, 78, 2, Q("0.321431 mm")))
sketch7.addConstraint(Sketcher.Constraint("DistanceX", -1, 1, 81, 2, Q("10.697268 mm")))
sketch7.addConstraint(Sketcher.Constraint("DistanceX", 0, 2, -1, 1, Q("7.010603 mm")))
sketch7.addConstraint(Sketcher.Constraint("DistanceY", -1, 1, 0, 2, Q("14.616913 mm")))
sketch7.addConstraint(Sketcher.Constraint("DistanceY", -1, 1, 4, 2, Q("11.568913 mm")))
sketch7.addConstraint(Sketcher.Constraint("DistanceY", 12, 2, -1, 1, Q("7.731285 mm")))
sketch7.addConstraint(Sketcher.Constraint("DistanceY", 16, 2, -1, 1, Q("9.636285 mm")))
sketch7.addConstraint(Sketcher.Constraint("DistanceY", 20, 2, -1, 1, Q("11.414285 mm")))
sketch7.addConstraint(Sketcher.Constraint("DistanceY", 24, 2, -1, 1, Q("13.192285 mm")))
sketch7.addConstraint(Sketcher.Constraint("DistanceY", 28, 2, -1, 1, Q("14.970285 mm")))
sketch7.addConstraint(Sketcher.Constraint("DistanceY", 32, 2, -1, 1, Q("12.943695 mm")))
sketch7.addConstraint(Sketcher.Constraint("DistanceY", 36, 2, -1, 1, Q("14.330445 mm")))
sketch7.addConstraint(Sketcher.Constraint("DistanceY", 40, 2, -1, 1, Q("16.235438 mm")))
sketch7.addConstraint(Sketcher.Constraint("DistanceY", 44, 2, -1, 1, Q("3.027438 mm")))
sketch7.addConstraint(Sketcher.Constraint("DistanceY", 48, 2, -1, 1, Q("4.932438 mm")))
sketch7.addConstraint(Sketcher.Constraint("DistanceX", -1, 1, 52, 2, Q("11.577562 mm")))
sketch7.addConstraint(Sketcher.Constraint("DistanceY", 56, 2, -1, 1, Q("10.266445 mm")))
sketch7.addConstraint(Sketcher.Constraint("DistanceX", -1, 1, 64, 2, Q("5.354555 mm")))
sketch7.addConstraint(Sketcher.Constraint("DistanceX", 68, 2, -1, 1, Q("5.059438 mm")))
sketch7.addConstraint(Sketcher.Constraint("DistanceX", -1, 1, 76, 2, Q("1.290555 mm")))
sketch7.addConstraint(Sketcher.Constraint("DistanceY", -1, 1, 80, 2, Q("7.508715 mm")))
sketch7.addConstraint(Sketcher.Constraint("DistanceY", -1, 1, 84, 2, Q("5.857715 mm")))
pad7 = body.newObject("PartDesign::Pad", "Pad006")
pad7.Profile = sketch7
pad7.Length = 0.4

sketch8 = body.newObject("Sketcher::SketchObject", "Sketch007")
sketch8.AttachmentSupport = (doc.getObject("XY_Plane"), [""])
sketch8.MapMode = "FlatFace"
sketch8.AttachmentOffset = App.Placement(V(0, 0, 1.6), App.Rotation())
add_polygon(sketch8, [(-13.336981, -12.170004), (-13.336981, -15.770022), (-7.236993, -15.770022), (-7.236993, -12.170004)])
add_polygon(sketch8, [(12.570993, 11.960022), (12.570993, 8.360004), (18.670981, 8.360004), (18.670981, 11.960022)])
sketch8.addConstraint(Sketcher.Constraint("Vertical", 0))
sketch8.addConstraint(Sketcher.Constraint("Horizontal", 1))
sketch8.addConstraint(Sketcher.Constraint("Vertical", 2))
sketch8.addConstraint(Sketcher.Constraint("Horizontal", 3))
sketch8.addConstraint(Sketcher.Constraint("Vertical", 4))
sketch8.addConstraint(Sketcher.Constraint("Horizontal", 5))
sketch8.addConstraint(Sketcher.Constraint("Vertical", 6))
sketch8.addConstraint(Sketcher.Constraint("Horizontal", 7))
sketch8.addConstraint(Sketcher.Constraint("Equal", 3, 5))
sketch8.addConstraint(Sketcher.Constraint("Equal", 2, 4))
sketch8.addConstraint(Sketcher.Constraint("DistanceY", 0, 2, 0, 1, Q("3.600018 mm")))
sketch8.addConstraint(Sketcher.Constraint("DistanceX", 1, 1, 1, 2, Q("6.099988 mm")))
sketch8.addConstraint(Sketcher.Constraint("DistanceX", 0, 2, -1, 1, Q("13.336981 mm")))
sketch8.addConstraint(Sketcher.Constraint("DistanceY", 0, 2, -1, 1, Q("15.770022 mm")))
sketch8.addConstraint(Sketcher.Constraint("DistanceX", -1, 1, 5, 2, Q("18.670981 mm")))
sketch8.addConstraint(Sketcher.Constraint("DistanceY", -1, 1, 6, 2, Q("11.960022 mm")))
pad8 = body.newObject("PartDesign::Pad", "Pad007")
pad8.Profile = sketch8
pad8.Length = 2.5

sketch9 = body.newObject("Sketcher::SketchObject", "Sketch008")
sketch9.AttachmentSupport = (doc.getObject("XY_Plane"), [""])
sketch9.MapMode = "FlatFace"
sketch9.AttachmentOffset = App.Placement(V(0, 0, 1.6), App.Rotation())
sketch9.addGeometry(Part.Circle(V(-17.526, 16.002, 0), V(0, 0, 1), 1.099998), False)
sketch9.addGeometry(Part.Circle(V(6.985, 21.844, 0), V(0, 0, 1), 1.099998), False)
sketch9.addGeometry(Part.Circle(V(4.699, -11.303, 0), V(0, 0, 1), 1.099998), False)
sketch9.addConstraint(Sketcher.Constraint("Equal", 0, 1))
sketch9.addConstraint(Sketcher.Constraint("Equal", 1, 2))
sketch9.addConstraint(Sketcher.Constraint("Diameter", 0, Q("2.199996 mm")))
sketch9.addConstraint(Sketcher.Constraint("DistanceX", 0, 3, -1, 1, Q("17.526 mm")))
sketch9.addConstraint(Sketcher.Constraint("DistanceY", -1, 1, 0, 3, Q("16.002 mm")))
sketch9.addConstraint(Sketcher.Constraint("DistanceX", -1, 1, 1, 3, Q("6.985 mm")))
sketch9.addConstraint(Sketcher.Constraint("DistanceY", -1, 1, 1, 3, Q("21.844 mm")))
sketch9.addConstraint(Sketcher.Constraint("DistanceX", -1, 1, 2, 3, Q("4.699 mm")))
sketch9.addConstraint(Sketcher.Constraint("DistanceY", 2, 3, -1, 1, Q("11.303 mm")))
pocket1 = body.newObject("PartDesign::Pocket", "Pocket")
pocket1.Profile = sketch9
pocket1.Length = 2.5

sketch10 = body.newObject("Sketcher::SketchObject", "Sketch009")
sketch10.AttachmentSupport = (doc.getObject("XY_Plane"), [""])
sketch10.MapMode = "FlatFace"
sketch10.AttachmentOffset = App.Placement(V(0, 0, 1.6), App.Rotation())
sketch10.addGeometry(Part.Circle(V(-12.192, 20.32, 0), V(0, 0, 1), 0.4445), False)
sketch10.addGeometry(Part.Circle(V(-9.652, 20.32, 0), V(0, 0, 1), 0.4445), False)
sketch10.addGeometry(Part.Circle(V(-7.112, 20.32, 0), V(0, 0, 1), 0.4445), False)
sketch10.addGeometry(Part.Circle(V(-11.176, 17.399, 0), V(0, 0, 1), 0.4445), False)
sketch10.addGeometry(Part.Circle(V(-8.636, 17.399, 0), V(0, 0, 1), 0.4445), False)
sketch10.addGeometry(Part.Circle(V(-11.176, 14.605, 0), V(0, 0, 1), 0.4445), False)
sketch10.addGeometry(Part.Circle(V(-8.636, 14.605, 0), V(0, 0, 1), 0.4445), False)
sketch10.addGeometry(Part.Circle(V(-11.176, 11.811, 0), V(0, 0, 1), 0.4445), False)
sketch10.addGeometry(Part.Circle(V(-8.636, 11.811, 0), V(0, 0, 1), 0.4445), False)
sketch10.addGeometry(Part.Circle(V(11.43, 20.574, 0), V(0, 0, 1), 0.4445), False)
sketch10.addGeometry(Part.Circle(V(11.43, 18.034, 0), V(0, 0, 1), 0.4445), False)
sketch10.addGeometry(Part.Circle(V(11.43, 15.494, 0), V(0, 0, 1), 0.4445), False)
sketch10.addGeometry(Part.Circle(V(14.986, 18.034, 0), V(0, 0, 1), 0.4445), False)
sketch10.addGeometry(Part.Circle(V(14.986, 15.494, 0), V(0, 0, 1), 0.4445), False)
sketch10.addGeometry(Part.Circle(V(18.034, 18.034, 0), V(0, 0, 1), 0.4445), False)
sketch10.addGeometry(Part.Circle(V(18.034, 15.494, 0), V(0, 0, 1), 0.4445), False)
sketch10.addConstraint(Sketcher.Constraint("Equal", 0, 1))
sketch10.addConstraint(Sketcher.Constraint("Equal", 1, 2))
sketch10.addConstraint(Sketcher.Constraint("Equal", 2, 3))
sketch10.addConstraint(Sketcher.Constraint("Equal", 3, 4))
sketch10.addConstraint(Sketcher.Constraint("Equal", 4, 5))
sketch10.addConstraint(Sketcher.Constraint("Equal", 5, 6))
sketch10.addConstraint(Sketcher.Constraint("Equal", 6, 7))
sketch10.addConstraint(Sketcher.Constraint("Equal", 7, 8))
sketch10.addConstraint(Sketcher.Constraint("Equal", 8, 9))
sketch10.addConstraint(Sketcher.Constraint("Equal", 9, 10))
sketch10.addConstraint(Sketcher.Constraint("Equal", 10, 11))
sketch10.addConstraint(Sketcher.Constraint("Equal", 11, 12))
sketch10.addConstraint(Sketcher.Constraint("Equal", 12, 13))
sketch10.addConstraint(Sketcher.Constraint("Equal", 13, 14))
sketch10.addConstraint(Sketcher.Constraint("Equal", 14, 15))
sketch10.addConstraint(Sketcher.Constraint("Horizontal", 0, 3, 1, 3))
sketch10.addConstraint(Sketcher.Constraint("Horizontal", 1, 3, 2, 3))
sketch10.addConstraint(Sketcher.Constraint("Horizontal", 3, 3, 4, 3))
sketch10.addConstraint(Sketcher.Constraint("Horizontal", 5, 3, 6, 3))
sketch10.addConstraint(Sketcher.Constraint("Horizontal", 7, 3, 8, 3))
sketch10.addConstraint(Sketcher.Constraint("Horizontal", 10, 3, 12, 3))
sketch10.addConstraint(Sketcher.Constraint("Horizontal", 11, 3, 13, 3))
sketch10.addConstraint(Sketcher.Constraint("Horizontal", 12, 3, 14, 3))
sketch10.addConstraint(Sketcher.Constraint("Horizontal", 13, 3, 15, 3))
sketch10.addConstraint(Sketcher.Constraint("Vertical", 3, 3, 5, 3))
sketch10.addConstraint(Sketcher.Constraint("Vertical", 4, 3, 6, 3))
sketch10.addConstraint(Sketcher.Constraint("Vertical", 5, 3, 7, 3))
sketch10.addConstraint(Sketcher.Constraint("Vertical", 6, 3, 8, 3))
sketch10.addConstraint(Sketcher.Constraint("Vertical", 9, 3, 10, 3))
sketch10.addConstraint(Sketcher.Constraint("Vertical", 10, 3, 11, 3))
sketch10.addConstraint(Sketcher.Constraint("Vertical", 12, 3, 13, 3))
sketch10.addConstraint(Sketcher.Constraint("Vertical", 14, 3, 15, 3))
sketch10.addConstraint(Sketcher.Constraint("Diameter", 0, Q("0.889 mm")))
sketch10.addConstraint(Sketcher.Constraint("DistanceY", -1, 1, 0, 3, Q("20.32 mm")))
sketch10.addConstraint(Sketcher.Constraint("DistanceX", -1, 1, 9, 3, Q("11.43 mm")))
sketch10.addConstraint(Sketcher.Constraint("DistanceX", 0, 3, 1, 3, Q("2.54 mm")))
sketch10.addConstraint(Sketcher.Constraint("DistanceX", 1, 3, 2, 3, Q("2.54 mm")))
sketch10.addConstraint(Sketcher.Constraint("DistanceX", 3, 3, 4, 3, Q("2.54 mm")))
sketch10.addConstraint(Sketcher.Constraint("DistanceY", 10, 3, 9, 3, Q("2.54 mm")))
sketch10.addConstraint(Sketcher.Constraint("DistanceY", 11, 3, 10, 3, Q("2.54 mm")))
sketch10.addConstraint(Sketcher.Constraint("DistanceX", 0, 3, -1, 1, Q("12.192 mm")))
sketch10.addConstraint(Sketcher.Constraint("DistanceX", 3, 3, -1, 1, Q("11.176 mm")))
sketch10.addConstraint(Sketcher.Constraint("DistanceY", -1, 1, 3, 3, Q("17.399 mm")))
sketch10.addConstraint(Sketcher.Constraint("DistanceY", -1, 1, 5, 3, Q("14.605 mm")))
sketch10.addConstraint(Sketcher.Constraint("DistanceY", -1, 1, 7, 3, Q("11.811 mm")))
sketch10.addConstraint(Sketcher.Constraint("DistanceY", -1, 1, 9, 3, Q("20.574 mm")))
sketch10.addConstraint(Sketcher.Constraint("DistanceX", -1, 1, 12, 3, Q("14.986 mm")))
sketch10.addConstraint(Sketcher.Constraint("DistanceX", -1, 1, 14, 3, Q("18.034 mm")))
pocket2 = body.newObject("PartDesign::Pocket", "Pocket001")
pocket2.Profile = sketch10
pocket2.Length = 10

doc.recompute()
